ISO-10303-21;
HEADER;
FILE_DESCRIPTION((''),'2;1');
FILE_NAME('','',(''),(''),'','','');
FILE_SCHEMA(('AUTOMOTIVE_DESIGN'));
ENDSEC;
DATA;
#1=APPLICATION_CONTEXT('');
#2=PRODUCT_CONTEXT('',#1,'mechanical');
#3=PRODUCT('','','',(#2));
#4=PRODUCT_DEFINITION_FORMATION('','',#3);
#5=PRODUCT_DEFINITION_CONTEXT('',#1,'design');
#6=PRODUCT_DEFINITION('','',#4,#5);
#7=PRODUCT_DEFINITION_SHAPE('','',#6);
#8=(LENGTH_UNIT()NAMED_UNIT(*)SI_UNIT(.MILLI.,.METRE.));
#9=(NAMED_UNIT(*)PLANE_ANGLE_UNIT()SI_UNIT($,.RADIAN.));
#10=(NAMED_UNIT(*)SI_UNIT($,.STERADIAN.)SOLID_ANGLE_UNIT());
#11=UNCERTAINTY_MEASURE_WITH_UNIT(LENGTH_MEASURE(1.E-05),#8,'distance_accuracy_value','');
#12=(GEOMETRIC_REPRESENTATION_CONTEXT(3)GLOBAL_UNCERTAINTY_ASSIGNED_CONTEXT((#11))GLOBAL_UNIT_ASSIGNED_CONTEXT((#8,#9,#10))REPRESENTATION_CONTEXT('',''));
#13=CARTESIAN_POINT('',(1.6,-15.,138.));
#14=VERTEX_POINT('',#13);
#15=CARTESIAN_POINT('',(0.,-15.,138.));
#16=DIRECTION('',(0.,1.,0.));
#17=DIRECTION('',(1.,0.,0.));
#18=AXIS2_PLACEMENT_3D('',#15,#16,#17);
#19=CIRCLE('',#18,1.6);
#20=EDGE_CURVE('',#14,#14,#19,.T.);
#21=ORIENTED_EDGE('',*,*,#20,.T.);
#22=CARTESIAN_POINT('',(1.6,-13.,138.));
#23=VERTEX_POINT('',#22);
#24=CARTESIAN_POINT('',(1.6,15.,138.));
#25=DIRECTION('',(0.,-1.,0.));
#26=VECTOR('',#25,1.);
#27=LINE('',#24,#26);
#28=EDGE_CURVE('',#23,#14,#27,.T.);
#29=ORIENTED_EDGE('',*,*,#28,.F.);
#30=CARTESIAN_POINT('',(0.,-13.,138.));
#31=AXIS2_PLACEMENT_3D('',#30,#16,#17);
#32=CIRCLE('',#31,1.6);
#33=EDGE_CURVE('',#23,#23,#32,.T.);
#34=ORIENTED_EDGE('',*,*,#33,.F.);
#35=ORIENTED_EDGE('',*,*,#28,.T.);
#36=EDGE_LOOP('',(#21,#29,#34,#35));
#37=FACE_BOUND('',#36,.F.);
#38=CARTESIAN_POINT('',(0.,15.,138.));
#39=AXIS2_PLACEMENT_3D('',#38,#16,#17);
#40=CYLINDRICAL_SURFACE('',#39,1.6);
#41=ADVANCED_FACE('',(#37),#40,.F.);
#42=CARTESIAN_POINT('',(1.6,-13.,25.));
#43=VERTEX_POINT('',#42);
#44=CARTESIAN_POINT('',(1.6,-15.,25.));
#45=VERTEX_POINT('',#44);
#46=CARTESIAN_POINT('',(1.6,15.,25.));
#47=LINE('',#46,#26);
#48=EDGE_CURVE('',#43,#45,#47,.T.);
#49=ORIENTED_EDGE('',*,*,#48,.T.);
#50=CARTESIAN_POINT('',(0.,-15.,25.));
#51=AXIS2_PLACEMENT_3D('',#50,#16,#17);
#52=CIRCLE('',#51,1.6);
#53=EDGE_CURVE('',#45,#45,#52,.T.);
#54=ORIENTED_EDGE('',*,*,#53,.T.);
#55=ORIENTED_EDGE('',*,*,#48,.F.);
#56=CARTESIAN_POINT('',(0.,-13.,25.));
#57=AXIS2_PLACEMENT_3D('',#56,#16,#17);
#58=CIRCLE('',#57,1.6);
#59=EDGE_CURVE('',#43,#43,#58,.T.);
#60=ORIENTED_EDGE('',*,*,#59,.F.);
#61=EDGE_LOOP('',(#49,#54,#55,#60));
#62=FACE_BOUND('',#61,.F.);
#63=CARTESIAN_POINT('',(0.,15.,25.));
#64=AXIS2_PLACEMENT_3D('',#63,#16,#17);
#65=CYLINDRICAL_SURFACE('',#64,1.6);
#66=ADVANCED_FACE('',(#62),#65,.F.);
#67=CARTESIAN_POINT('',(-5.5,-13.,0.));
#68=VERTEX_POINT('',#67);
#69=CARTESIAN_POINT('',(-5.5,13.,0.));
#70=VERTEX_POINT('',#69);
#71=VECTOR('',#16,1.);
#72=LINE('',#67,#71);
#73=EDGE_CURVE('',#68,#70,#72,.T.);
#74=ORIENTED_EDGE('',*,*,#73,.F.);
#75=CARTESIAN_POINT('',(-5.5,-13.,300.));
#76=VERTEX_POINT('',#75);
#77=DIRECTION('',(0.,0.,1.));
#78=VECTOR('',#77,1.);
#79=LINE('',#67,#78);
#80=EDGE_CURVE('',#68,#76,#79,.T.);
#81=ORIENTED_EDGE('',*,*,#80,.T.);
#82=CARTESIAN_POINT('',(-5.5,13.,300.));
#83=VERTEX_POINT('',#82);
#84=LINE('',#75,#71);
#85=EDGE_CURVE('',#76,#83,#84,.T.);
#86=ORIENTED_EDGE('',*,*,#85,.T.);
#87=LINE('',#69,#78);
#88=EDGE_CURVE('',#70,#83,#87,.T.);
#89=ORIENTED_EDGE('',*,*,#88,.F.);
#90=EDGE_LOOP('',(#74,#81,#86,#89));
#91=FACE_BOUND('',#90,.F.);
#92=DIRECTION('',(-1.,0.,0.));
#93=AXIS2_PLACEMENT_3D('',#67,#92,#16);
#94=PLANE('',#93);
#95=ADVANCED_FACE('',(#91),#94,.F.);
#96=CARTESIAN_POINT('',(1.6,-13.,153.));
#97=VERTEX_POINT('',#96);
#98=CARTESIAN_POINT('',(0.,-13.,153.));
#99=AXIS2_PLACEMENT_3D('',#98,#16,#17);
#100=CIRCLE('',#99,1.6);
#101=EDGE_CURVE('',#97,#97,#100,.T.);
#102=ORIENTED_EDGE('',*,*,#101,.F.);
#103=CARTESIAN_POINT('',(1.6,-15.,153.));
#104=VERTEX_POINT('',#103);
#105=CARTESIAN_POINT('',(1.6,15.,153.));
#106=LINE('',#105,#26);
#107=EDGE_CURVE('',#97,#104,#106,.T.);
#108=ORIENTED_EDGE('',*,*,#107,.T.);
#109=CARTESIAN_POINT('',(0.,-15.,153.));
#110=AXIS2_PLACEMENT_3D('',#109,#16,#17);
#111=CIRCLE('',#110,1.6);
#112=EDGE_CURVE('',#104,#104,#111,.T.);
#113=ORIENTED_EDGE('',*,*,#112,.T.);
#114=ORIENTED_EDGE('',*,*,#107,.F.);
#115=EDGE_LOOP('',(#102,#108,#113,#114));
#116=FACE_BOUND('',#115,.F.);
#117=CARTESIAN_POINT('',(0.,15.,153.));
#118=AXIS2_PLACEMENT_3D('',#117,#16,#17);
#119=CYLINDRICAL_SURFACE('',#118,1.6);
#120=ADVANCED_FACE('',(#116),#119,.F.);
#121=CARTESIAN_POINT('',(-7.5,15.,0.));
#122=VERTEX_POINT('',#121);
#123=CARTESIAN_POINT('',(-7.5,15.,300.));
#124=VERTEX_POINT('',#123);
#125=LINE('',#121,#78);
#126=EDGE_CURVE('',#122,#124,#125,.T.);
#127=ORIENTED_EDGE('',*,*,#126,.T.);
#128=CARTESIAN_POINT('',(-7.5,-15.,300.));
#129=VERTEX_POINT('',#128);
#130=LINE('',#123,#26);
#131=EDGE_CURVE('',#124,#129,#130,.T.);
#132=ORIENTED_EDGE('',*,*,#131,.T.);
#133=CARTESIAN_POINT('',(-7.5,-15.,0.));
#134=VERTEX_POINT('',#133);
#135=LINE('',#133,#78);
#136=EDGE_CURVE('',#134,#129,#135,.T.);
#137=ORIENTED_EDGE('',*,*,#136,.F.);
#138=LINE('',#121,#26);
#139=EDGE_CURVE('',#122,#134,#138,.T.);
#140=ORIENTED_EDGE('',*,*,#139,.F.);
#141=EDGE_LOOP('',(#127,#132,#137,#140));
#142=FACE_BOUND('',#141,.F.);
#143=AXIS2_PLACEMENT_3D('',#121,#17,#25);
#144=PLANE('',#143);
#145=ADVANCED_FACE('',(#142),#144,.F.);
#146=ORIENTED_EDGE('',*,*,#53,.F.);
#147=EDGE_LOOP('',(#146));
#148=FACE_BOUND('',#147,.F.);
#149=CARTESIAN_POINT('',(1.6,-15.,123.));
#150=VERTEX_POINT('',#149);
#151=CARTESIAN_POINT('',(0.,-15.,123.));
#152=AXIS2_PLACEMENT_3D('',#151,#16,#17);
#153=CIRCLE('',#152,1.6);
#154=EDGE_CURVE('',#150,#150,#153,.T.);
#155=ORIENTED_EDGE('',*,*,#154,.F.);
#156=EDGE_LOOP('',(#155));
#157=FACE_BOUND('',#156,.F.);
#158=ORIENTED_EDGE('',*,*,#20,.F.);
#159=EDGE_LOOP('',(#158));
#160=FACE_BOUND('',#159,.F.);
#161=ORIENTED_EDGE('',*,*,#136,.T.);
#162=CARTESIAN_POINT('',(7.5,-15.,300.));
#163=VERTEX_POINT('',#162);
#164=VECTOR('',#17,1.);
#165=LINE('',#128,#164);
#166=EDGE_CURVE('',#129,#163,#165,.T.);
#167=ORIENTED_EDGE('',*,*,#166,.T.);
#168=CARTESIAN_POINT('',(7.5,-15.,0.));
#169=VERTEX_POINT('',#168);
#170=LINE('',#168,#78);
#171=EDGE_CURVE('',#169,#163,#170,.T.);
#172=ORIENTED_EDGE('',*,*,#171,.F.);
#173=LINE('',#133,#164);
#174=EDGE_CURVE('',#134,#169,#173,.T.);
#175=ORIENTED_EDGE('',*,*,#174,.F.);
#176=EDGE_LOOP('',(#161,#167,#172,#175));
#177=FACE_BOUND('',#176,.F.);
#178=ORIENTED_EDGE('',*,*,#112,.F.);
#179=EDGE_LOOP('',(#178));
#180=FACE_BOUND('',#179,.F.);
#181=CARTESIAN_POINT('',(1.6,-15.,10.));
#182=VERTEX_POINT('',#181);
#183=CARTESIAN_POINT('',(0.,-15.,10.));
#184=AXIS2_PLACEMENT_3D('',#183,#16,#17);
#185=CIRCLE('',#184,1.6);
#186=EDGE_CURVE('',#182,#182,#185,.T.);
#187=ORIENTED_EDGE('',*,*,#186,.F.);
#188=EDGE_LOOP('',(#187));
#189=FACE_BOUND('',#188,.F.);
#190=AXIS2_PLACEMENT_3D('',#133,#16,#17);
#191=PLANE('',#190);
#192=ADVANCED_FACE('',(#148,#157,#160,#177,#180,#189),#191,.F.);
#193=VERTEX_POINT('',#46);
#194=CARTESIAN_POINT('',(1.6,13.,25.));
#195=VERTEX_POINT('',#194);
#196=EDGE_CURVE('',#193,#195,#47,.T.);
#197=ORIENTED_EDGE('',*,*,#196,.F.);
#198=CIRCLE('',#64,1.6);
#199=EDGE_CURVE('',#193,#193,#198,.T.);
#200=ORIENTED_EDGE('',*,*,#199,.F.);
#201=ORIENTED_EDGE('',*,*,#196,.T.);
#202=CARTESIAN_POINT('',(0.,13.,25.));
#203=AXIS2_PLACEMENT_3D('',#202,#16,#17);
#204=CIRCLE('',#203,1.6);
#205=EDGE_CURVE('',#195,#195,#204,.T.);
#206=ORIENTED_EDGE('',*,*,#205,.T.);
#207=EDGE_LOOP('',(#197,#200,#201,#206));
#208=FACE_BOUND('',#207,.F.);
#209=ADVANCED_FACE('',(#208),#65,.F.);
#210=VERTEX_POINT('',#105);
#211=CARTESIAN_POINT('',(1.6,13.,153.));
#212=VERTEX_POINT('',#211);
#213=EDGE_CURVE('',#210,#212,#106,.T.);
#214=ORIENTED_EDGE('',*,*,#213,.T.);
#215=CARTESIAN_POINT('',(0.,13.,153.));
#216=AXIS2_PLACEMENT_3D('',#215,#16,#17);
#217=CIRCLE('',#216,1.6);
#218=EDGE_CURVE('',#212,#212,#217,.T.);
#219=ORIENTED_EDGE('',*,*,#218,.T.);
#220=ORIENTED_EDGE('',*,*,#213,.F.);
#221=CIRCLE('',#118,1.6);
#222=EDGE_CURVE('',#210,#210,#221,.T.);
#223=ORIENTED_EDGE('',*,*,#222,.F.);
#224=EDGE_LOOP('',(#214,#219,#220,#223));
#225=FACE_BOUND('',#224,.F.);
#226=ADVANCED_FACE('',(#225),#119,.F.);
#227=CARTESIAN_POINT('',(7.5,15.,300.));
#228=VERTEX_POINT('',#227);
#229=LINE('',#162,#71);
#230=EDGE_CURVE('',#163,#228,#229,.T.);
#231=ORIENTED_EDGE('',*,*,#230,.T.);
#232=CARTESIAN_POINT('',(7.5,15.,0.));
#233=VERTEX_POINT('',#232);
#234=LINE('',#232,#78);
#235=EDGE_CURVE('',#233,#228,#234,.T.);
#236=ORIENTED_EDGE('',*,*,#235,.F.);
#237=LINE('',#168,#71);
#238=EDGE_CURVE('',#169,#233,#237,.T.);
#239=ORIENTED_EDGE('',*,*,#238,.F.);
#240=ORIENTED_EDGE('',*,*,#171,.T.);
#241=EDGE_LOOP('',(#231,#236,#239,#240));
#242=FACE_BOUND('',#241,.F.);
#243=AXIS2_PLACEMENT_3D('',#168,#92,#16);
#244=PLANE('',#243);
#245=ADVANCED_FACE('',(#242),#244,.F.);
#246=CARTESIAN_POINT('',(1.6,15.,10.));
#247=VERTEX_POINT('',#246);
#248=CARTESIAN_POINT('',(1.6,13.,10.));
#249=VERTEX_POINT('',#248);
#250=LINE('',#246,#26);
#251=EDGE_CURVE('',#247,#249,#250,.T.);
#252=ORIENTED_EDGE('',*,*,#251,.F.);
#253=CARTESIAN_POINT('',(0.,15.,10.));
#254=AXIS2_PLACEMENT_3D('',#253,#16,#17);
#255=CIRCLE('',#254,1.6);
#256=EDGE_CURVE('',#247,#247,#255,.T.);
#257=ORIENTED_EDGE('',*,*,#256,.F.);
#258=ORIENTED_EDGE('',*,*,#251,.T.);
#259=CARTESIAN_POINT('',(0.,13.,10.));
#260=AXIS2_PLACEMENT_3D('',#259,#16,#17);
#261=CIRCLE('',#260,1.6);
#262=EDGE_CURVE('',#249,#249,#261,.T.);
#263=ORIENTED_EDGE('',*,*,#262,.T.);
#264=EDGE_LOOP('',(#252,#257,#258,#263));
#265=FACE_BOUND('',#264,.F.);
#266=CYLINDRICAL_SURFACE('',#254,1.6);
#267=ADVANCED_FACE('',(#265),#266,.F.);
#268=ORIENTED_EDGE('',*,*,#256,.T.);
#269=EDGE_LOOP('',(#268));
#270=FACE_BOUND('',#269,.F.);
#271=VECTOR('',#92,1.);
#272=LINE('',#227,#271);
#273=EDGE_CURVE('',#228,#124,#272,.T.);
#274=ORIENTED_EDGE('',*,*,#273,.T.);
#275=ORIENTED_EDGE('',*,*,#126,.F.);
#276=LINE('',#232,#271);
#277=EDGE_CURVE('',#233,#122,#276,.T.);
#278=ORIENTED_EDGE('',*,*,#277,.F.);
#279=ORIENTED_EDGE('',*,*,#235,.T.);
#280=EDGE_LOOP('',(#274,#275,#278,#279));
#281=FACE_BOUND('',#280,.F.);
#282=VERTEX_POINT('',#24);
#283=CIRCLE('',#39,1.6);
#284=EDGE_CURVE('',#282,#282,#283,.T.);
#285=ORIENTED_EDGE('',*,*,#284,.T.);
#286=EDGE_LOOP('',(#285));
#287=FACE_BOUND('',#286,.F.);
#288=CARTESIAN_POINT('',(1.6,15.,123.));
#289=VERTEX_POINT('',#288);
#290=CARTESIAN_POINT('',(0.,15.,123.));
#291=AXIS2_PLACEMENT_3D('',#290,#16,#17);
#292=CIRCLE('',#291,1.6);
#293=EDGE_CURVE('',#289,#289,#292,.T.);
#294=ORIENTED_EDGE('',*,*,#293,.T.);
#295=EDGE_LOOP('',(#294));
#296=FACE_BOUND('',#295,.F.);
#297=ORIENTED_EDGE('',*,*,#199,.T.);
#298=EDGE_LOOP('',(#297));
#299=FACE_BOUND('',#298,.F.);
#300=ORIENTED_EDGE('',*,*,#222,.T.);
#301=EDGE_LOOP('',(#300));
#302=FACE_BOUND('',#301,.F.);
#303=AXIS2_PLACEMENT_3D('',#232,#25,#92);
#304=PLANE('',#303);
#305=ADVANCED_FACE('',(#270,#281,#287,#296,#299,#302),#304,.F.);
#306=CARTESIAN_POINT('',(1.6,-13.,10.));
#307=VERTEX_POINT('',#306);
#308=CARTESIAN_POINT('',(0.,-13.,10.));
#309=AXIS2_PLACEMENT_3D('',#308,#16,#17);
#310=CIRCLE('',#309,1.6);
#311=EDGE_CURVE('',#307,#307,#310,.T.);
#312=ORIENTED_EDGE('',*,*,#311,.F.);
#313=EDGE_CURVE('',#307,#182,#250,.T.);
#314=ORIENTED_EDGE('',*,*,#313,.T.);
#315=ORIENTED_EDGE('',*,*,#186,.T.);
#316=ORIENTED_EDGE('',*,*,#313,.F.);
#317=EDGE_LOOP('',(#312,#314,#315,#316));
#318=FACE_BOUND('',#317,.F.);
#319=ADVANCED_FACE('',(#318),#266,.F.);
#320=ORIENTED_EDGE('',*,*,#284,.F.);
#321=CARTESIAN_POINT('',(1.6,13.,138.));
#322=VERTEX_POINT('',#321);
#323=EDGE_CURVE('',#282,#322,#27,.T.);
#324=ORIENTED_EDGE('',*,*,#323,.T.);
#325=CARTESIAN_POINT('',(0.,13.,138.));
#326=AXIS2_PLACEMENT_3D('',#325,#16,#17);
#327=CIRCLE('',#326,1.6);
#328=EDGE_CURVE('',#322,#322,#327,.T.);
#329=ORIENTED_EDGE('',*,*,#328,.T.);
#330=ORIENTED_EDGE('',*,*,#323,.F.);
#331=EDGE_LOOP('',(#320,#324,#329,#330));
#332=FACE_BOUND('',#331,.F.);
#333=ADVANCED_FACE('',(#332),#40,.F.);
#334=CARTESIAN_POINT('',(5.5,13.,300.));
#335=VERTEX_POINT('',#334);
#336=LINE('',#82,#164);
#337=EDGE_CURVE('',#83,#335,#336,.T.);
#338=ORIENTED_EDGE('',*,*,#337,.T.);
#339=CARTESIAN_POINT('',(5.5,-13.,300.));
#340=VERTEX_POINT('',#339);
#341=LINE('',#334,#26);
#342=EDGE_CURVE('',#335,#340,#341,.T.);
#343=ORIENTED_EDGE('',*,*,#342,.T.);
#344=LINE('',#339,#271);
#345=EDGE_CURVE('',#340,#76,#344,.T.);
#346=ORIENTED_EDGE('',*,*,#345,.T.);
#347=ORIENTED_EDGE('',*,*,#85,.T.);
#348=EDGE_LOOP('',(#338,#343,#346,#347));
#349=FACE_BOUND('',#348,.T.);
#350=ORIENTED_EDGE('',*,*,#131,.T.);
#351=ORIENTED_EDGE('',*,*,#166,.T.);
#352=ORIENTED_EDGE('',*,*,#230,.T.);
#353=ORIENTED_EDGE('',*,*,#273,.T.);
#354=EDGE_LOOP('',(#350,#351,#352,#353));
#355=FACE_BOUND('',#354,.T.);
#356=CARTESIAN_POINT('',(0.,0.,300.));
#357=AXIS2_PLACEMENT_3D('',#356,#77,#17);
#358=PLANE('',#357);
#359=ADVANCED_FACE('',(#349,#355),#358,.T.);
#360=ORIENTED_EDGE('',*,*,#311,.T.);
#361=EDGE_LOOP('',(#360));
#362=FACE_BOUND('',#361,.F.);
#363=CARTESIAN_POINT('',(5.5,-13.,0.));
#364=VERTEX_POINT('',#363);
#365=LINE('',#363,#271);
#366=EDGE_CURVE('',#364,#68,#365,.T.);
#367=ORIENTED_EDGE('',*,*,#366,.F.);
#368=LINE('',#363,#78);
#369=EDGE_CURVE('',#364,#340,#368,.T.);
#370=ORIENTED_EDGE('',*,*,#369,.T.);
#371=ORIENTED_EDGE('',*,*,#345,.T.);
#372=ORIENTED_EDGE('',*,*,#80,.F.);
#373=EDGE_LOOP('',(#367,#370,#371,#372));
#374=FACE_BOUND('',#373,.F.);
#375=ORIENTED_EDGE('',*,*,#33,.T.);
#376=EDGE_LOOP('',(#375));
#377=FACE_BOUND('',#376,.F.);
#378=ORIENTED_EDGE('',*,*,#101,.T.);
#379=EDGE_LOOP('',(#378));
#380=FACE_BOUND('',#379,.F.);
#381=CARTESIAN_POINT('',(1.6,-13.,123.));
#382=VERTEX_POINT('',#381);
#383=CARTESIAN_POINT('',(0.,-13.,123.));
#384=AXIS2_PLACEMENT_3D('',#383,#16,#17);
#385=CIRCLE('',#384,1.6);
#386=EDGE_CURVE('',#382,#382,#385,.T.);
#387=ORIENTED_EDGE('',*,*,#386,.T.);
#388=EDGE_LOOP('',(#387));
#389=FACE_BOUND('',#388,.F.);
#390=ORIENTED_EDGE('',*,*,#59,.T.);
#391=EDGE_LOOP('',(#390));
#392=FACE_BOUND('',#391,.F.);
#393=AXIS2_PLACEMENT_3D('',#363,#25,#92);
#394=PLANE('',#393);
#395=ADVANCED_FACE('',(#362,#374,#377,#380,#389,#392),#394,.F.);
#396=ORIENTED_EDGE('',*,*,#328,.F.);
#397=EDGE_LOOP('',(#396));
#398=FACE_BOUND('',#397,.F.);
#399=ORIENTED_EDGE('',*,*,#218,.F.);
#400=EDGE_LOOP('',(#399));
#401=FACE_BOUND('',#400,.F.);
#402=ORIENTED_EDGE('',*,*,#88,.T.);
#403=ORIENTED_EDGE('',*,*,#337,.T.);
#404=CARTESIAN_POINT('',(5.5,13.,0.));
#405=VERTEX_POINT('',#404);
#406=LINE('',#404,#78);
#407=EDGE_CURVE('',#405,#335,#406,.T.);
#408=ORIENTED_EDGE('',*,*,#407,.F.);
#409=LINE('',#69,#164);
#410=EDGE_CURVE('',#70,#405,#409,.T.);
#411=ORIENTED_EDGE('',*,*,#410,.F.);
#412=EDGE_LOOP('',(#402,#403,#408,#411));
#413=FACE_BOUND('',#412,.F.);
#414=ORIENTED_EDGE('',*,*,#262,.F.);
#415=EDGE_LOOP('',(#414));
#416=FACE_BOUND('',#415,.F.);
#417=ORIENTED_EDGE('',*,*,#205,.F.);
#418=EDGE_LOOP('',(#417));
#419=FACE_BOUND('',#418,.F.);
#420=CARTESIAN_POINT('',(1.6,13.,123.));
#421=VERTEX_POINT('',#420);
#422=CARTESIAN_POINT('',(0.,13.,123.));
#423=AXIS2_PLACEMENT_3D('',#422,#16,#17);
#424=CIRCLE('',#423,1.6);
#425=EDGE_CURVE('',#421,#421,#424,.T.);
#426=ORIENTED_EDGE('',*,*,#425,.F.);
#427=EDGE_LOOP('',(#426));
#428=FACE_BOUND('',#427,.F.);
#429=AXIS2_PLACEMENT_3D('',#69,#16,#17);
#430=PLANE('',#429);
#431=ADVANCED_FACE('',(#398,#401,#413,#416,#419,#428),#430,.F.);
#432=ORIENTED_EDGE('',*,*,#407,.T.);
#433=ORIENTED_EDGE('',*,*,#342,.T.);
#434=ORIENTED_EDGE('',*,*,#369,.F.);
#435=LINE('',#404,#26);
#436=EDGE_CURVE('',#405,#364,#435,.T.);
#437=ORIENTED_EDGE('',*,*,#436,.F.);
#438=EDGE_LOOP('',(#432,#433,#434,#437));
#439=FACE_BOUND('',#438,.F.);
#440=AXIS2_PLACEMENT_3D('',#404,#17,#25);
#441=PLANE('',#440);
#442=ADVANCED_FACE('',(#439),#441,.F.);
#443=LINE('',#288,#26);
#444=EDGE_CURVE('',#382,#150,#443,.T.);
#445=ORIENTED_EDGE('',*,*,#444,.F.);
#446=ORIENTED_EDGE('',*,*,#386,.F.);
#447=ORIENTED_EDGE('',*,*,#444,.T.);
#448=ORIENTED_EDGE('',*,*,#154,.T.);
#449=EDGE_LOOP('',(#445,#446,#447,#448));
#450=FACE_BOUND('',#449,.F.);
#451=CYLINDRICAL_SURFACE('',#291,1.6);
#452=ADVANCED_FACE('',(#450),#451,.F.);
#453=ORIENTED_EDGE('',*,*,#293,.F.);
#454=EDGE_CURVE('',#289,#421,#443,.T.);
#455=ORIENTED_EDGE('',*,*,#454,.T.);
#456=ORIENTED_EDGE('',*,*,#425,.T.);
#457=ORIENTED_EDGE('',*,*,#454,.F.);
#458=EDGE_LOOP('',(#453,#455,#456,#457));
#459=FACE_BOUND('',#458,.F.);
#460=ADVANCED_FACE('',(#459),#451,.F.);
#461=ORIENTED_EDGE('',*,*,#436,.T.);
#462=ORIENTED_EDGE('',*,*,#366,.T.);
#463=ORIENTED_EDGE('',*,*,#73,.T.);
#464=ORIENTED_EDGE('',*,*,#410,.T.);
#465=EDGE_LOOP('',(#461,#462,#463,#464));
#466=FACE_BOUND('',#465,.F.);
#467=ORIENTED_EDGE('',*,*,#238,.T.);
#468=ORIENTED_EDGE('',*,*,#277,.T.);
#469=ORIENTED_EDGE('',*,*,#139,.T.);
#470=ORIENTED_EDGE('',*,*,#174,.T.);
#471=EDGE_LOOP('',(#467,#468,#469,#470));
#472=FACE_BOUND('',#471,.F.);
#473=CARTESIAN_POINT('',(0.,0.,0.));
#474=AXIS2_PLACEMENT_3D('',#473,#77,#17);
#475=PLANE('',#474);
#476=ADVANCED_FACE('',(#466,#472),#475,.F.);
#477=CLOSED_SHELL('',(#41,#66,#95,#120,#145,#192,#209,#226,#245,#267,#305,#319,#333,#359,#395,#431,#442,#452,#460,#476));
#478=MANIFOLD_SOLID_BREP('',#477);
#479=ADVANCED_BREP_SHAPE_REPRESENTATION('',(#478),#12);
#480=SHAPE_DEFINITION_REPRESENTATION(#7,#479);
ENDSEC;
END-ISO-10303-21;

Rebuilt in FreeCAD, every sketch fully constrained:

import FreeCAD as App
import Part
import Sketcher

V = App.Vector
Q = App.Units.Quantity


def add_polygon(sketch, points):
    """Adds a closed chain of lines whose ends are joined by coincident constraints."""
    first, n = sketch.GeometryCount, len(points)
    for a, b in zip(points, points[1:] + points[:1]):
        sketch.addGeometry(Part.LineSegment(App.Vector(*a, 0), App.Vector(*b, 0)), False)
    for i in range(n):
        sketch.addConstraint(Sketcher.Constraint("Coincident", first + i, 2, first + (i + 1) % n, 1))

doc = App.newDocument("Part")
params = doc.addObject("Spreadsheet::Sheet", "Params")
for row, (alias, value) in enumerate([
    ("sketch1_width", "15 mm"),
    ("sketch1_height", "30 mm"),
    ("pad1_length", "300 mm"),
    ("sketch2_diameter", "3.2 mm"),
], start=1):
    params.set(f"A{row}", alias)
    params.set(f"B{row}", "=" + value)
    params.setAlias(f"B{row}", alias)

body = doc.addObject("PartDesign::Body", "Body")

# Sketch on XY plane
sketch1 = doc.addObject("Sketcher::SketchObject", "Sketch")
body.addObject(sketch1)
sketch1.AttachmentSupport = (doc.XY_Plane, [""])
sketch1.MapMode = "FlatFace"
add_polygon(sketch1, [(8, -15), (8, 15), (-8, 15), (-8, -15)])  # lines 0-3
add_polygon(sketch1, [(-6, -13), (-6, 13), (6, 13), (6, -13)])  # lines 4-7
sketch1.addConstraint(Sketcher.Constraint("Vertical", 0))
sketch1.addConstraint(Sketcher.Constraint("Horizontal", 1))
sketch1.addConstraint(Sketcher.Constraint("Vertical", 2))
sketch1.addConstraint(Sketcher.Constraint("Horizontal", 3))
sketch1.addConstraint(Sketcher.Constraint("Vertical", 4))
sketch1.addConstraint(Sketcher.Constraint("Horizontal", 5))
sketch1.addConstraint(Sketcher.Constraint("Vertical", 6))
sketch1.addConstraint(Sketcher.Constraint("Horizontal", 7))
sketch1.addConstraint(Sketcher.Constraint("Symmetric", 0, 2, 2, 2, -1, 1))
sketch1.addConstraint(Sketcher.Constraint("Symmetric", 4, 2, 6, 2, -1, 1))
sketch1.addConstraint(Sketcher.Constraint("DistanceX", 1, 2, 1, 1, Q("15 mm")))
sketch1.addConstraint(Sketcher.Constraint("DistanceY", 0, 1, 0, 2, Q("30 mm")))
sketch1.addConstraint(Sketcher.Constraint("DistanceX", 1, 2, 4, 2, Q("2 mm")))
sketch1.addConstraint(Sketcher.Constraint("DistanceY", 4, 2, 1, 2, Q("2 mm")))
sketch1.setExpression("Constraints[18]", "Params.sketch1_width")
sketch1.setExpression("Constraints[19]", "Params.sketch1_height")
pad1 = doc.addObject("PartDesign::Pad", "Pad")
body.addObject(pad1)
pad1.Profile = sketch1
pad1.setExpression("Length", "Params.pad1_length")

# Sketch on XZ plane
sketch2 = doc.addObject("Sketcher::SketchObject", "Sketch001")
body.addObject(sketch2)
sketch2.AttachmentSupport = (doc.XZ_Plane, [""])
sketch2.MapMode = "FlatFace"
sketch2.AttachmentOffset = App.Placement(V(0, 0, -15), App.Rotation())
sketch2.addGeometry(Part.Circle(V(0, 10, 0), V(0, 0, 1), 1.6), False)
sketch2.addGeometry(Part.Circle(V(0, 25, 0), V(0, 0, 1), 1.6), False)
sketch2.addGeometry(Part.Circle(V(0, 138, 0), V(0, 0, 1), 1.6), False)
sketch2.addGeometry(Part.Circle(V(0, 153, 0), V(0, 0, 1), 1.6), False)
sketch2.addGeometry(Part.Circle(V(0, 123, 0), V(0, 0, 1), 1.6), False)
sketch2.addConstraint(Sketcher.Constraint("Equal", 0, 1))
sketch2.addConstraint(Sketcher.Constraint("Equal", 1, 2))
sketch2.addConstraint(Sketcher.Constraint("Equal", 2, 3))
sketch2.addConstraint(Sketcher.Constraint("Equal", 3, 4))
sketch2.addConstraint(Sketcher.Constraint("PointOnObject", 0, 3, -2))
sketch2.addConstraint(Sketcher.Constraint("PointOnObject", 1, 3, -2))
sketch2.addConstraint(Sketcher.Constraint("PointOnObject", 2, 3, -2))
sketch2.addConstraint(Sketcher.Constraint("PointOnObject", 3, 3, -2))
sketch2.addConstraint(Sketcher.Constraint("PointOnObject", 4, 3, -2))
sketch2.addConstraint(Sketcher.Constraint("Diameter", 0, Q("3.2 mm")))
sketch2.addConstraint(Sketcher.Constraint("DistanceY", -1, 1, 0, 3, Q("10 mm")))
sketch2.addConstraint(Sketcher.Constraint("DistanceY", 0, 3, 1, 3, Q("15 mm")))
sketch2.addConstraint(Sketcher.Constraint("DistanceY", 2, 3, 3, 3, Q("15 mm")))
sketch2.addConstraint(Sketcher.Constraint("DistanceY", 4, 3, 2, 3, Q("15 mm")))
sketch2.addConstraint(Sketcher.Constraint("DistanceY", 1, 3, 4, 3, Q("98 mm")))
sketch2.setExpression("Constraints[9]", "Params.sketch2_diameter")
pocket1 = doc.addObject("PartDesign::Pocket", "Pocket")
body.addObject(pocket1)
pocket1.Profile = sketch2
pocket1.Type = "ThroughAll"
pocket1.Reversed = True

doc.recompute()
